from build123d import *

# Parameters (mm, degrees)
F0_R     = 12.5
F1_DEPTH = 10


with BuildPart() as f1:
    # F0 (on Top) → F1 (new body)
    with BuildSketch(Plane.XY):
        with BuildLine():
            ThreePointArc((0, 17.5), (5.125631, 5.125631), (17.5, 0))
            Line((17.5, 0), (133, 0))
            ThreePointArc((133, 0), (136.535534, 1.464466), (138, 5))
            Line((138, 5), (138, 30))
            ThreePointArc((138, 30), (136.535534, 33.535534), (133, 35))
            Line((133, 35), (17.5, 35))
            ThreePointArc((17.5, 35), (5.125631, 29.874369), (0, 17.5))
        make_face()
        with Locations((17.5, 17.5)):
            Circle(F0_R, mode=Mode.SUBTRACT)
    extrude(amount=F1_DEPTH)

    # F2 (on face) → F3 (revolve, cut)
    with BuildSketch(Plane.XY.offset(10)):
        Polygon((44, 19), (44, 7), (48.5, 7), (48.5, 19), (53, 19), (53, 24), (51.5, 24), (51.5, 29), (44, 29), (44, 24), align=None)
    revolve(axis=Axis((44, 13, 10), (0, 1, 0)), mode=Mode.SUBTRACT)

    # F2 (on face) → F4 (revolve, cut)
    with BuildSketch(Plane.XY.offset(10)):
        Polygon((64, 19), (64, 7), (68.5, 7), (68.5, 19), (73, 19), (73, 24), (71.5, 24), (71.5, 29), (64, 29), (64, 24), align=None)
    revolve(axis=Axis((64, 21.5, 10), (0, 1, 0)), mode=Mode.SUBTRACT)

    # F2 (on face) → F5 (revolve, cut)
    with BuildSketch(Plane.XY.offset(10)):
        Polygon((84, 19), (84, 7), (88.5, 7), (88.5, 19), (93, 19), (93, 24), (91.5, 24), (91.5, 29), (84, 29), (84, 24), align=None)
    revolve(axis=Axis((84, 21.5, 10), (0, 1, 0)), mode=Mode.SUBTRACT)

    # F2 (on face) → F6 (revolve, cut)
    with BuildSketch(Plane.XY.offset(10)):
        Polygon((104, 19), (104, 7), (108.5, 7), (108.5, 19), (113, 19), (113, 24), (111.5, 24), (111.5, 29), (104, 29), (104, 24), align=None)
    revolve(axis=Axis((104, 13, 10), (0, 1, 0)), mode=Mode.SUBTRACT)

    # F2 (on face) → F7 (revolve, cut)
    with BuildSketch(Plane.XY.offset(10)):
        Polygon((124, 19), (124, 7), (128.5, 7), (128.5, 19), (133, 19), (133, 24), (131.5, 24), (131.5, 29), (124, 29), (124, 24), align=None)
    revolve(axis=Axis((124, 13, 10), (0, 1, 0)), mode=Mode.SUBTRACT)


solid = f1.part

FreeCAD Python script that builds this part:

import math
import FreeCAD as App
import Part
import Sketcher
from FreeCAD import Vector
Q = App.Units.Quantity

doc = App.newDocument("Part")
params = doc.addObject("Spreadsheet::Sheet", "Params")
for row, (alias, value) in enumerate([
    ("sketch1_diameter", "25 mm"),
    ("sketch1_radius", "5 mm"),
    ("sketch1_radius2", "17.499999 mm"),
    ("sketch1_width", "115.5 mm"),
    ("pad1_length", "10 mm"),
    ("sketch2_height", "12 mm"),
    ("sketch2_height2", "5 mm"),
    ("sketch2_width", "4.5 mm"),
    ("sketch2_width2", "1.5 mm"),
    ("groove_angle", "360 deg"),
    ("sketch3_height", "12 mm"),
    ("sketch3_height2", "5 mm"),
    ("sketch3_width", "4.5 mm"),
    ("sketch3_width2", "1.5 mm"),
    ("groove2_angle", "360 deg"),
    ("sketch4_height", "12 mm"),
    ("sketch4_height2", "5 mm"),
    ("sketch4_width", "4.5 mm"),
    ("sketch4_width2", "1.5 mm"),
    ("groove3_angle", "360 deg"),
    ("sketch5_height", "12 mm"),
    ("sketch5_height2", "5 mm"),
    ("sketch5_width", "4.5 mm"),
    ("sketch5_width2", "1.5 mm"),
    ("groove4_angle", "360 deg"),
    ("sketch6_height", "12 mm"),
    ("sketch6_height2", "5 mm"),
    ("sketch6_width", "4.5 mm"),
    ("sketch6_width2", "1.5 mm"),
    ("groove5_angle", "360 deg"),
], start=1):
    params.set(f"A{row}", alias)
    params.set(f"B{row}", "=" + value)
    params.setAlias(f"B{row}", alias)

body = doc.addObject("PartDesign::Body", "Body")

# Sketch on XY plane
sketch1 = body.newObject("Sketcher::SketchObject", "Sketch")
sketch1.AttachmentSupport = (doc.getObject("XY_Plane"), [""])
sketch1.MapMode = "FlatFace"
sketch1.addGeometry([
    Part.ArcOfCircle(Part.Circle(Vector(17.499999, 17.499999, 0), Vector(0, 0, 1), 17.499999), math.radians(179.999996), math.radians(270.000004)),  # 0
    Part.LineSegment(Vector(17.5, 0, 0), Vector(133, 0, 0)),  # 1
    Part.ArcOfCircle(Part.Circle(Vector(133, 5, 0), Vector(0, 0, 1), 5), math.radians(-90.000004), math.radians(0.000004)),  # 2
    Part.LineSegment(Vector(138, 5, 0), Vector(138, 30, 0)),  # 3
    Part.ArcOfCircle(Part.Circle(Vector(133, 30, 0), Vector(0, 0, 1), 5), math.radians(-0.000004), math.radians(90.000004)),  # 4
    Part.LineSegment(Vector(133, 35, 0), Vector(17.5, 35, 0)),  # 5
    Part.ArcOfCircle(Part.Circle(Vector(17.499999, 17.500001, 0), Vector(0, 0, 1), 17.499999), math.radians(89.999996), math.radians(180.000004)),  # 6
    Part.Circle(Vector(17.5, 17.5, 0), Vector(0, 0, 1), 12.5),  # 7
], False)
sketch1.addConstraint([
    Sketcher.Constraint("Tangent", 0, 2, 1, 1),
    Sketcher.Constraint("Tangent", 1, 2, 2, 1),
    Sketcher.Constraint("Tangent", 2, 2, 3, 1),
    Sketcher.Constraint("Tangent", 3, 2, 4, 1),
    Sketcher.Constraint("Tangent", 4, 2, 5, 1),
    Sketcher.Constraint("Tangent", 5, 2, 6, 1),
    Sketcher.Constraint("Tangent", 6, 2, 0, 1),
    Sketcher.Constraint("Horizontal", 1),
    Sketcher.Constraint("Vertical", 3),
    Sketcher.Constraint("Horizontal", 5),
    Sketcher.Constraint("Coincident", 7, 3, 0, 3),
    Sketcher.Constraint("Equal", 2, 4),
    Sketcher.Constraint("Equal", 0, 6),
    Sketcher.Constraint("PointOnObject", 0, 2, -1),
    Sketcher.Constraint("PointOnObject", 6, 2, -2),
    Sketcher.Constraint("Horizontal", 7, 3, 6, 2),
    Sketcher.Constraint("Diameter", 7, Q("25 mm")),
    Sketcher.Constraint("Radius", 2, Q("5 mm")),
    Sketcher.Constraint("Radius", 0, Q("17.499999 mm")),
    Sketcher.Constraint("DistanceX", 1, 1, 1, 2, Q("115.5 mm")),
])
sketch1.setExpression("Constraints[16]", "Params.sketch1_diameter")
sketch1.setExpression("Constraints[17]", "Params.sketch1_radius")
sketch1.setExpression("Constraints[18]", "Params.sketch1_radius2")
sketch1.setExpression("Constraints[19]", "Params.sketch1_width")
pad1 = body.newObject("PartDesign::Pad", "Pad")
pad1.Profile = sketch1
pad1.setExpression("Length", "Params.pad1_length")

# Sketch on XY plane
sketch2 = body.newObject("Sketcher::SketchObject", "Sketch001")
sketch2.AttachmentSupport = (doc.getObject("XY_Plane"), [""])
sketch2.MapMode = "FlatFace"
sketch2.AttachmentOffset = App.Placement(Vector(0, 0, 10), App.Rotation())
sketch2.addGeometry([
    Part.LineSegment(Vector(44, 7, 0), Vector(48.5, 7, 0)),  # 0
    Part.LineSegment(Vector(48.5, 7, 0), Vector(48.5, 19, 0)),  # 1
    Part.LineSegment(Vector(48.5, 19, 0), Vector(53, 19, 0)),  # 2
    Part.LineSegment(Vector(53, 19, 0), Vector(53, 24, 0)),  # 3
    Part.LineSegment(Vector(53, 24, 0), Vector(51.5, 24, 0)),  # 4
    Part.LineSegment(Vector(51.5, 24, 0), Vector(51.5, 29, 0)),  # 5
    Part.LineSegment(Vector(51.5, 29, 0), Vector(44, 29, 0)),  # 6
    Part.LineSegment(Vector(44, 29, 0), Vector(44, 7, 0)),  # 7
], False)
sketch2.addGeometry(Part.LineSegment(Vector(44, 7, 0), Vector(44, 29, 0)), True)  # axis
sketch2.addConstraint([
    Sketcher.Constraint("Coincident", 0, 2, 1, 1),
    Sketcher.Constraint("Coincident", 1, 2, 2, 1),
    Sketcher.Constraint("Coincident", 2, 2, 3, 1),
    Sketcher.Constraint("Coincident", 3, 2, 4, 1),
    Sketcher.Constraint("Coincident", 4, 2, 5, 1),
    Sketcher.Constraint("Coincident", 5, 2, 6, 1),
    Sketcher.Constraint("Coincident", 6, 2, 7, 1),
    Sketcher.Constraint("Coincident", 7, 2, 0, 1),
    Sketcher.Constraint("Horizontal", 0),
    Sketcher.Constraint("Vertical", 1),
    Sketcher.Constraint("Horizontal", 2),
    Sketcher.Constraint("Vertical", 3),
    Sketcher.Constraint("Horizontal", 4),
    Sketcher.Constraint("Vertical", 5),
    Sketcher.Constraint("Horizontal", 6),
    Sketcher.Constraint("Vertical", 7),
    Sketcher.Constraint("Vertical", 8),
    Sketcher.Constraint("Coincident", 8, 1, 7, 2),
    Sketcher.Constraint("Horizontal", 5, 2, 8, 2),
    Sketcher.Constraint("Equal", 0, 2),
    Sketcher.Constraint("Equal", 3, 5),
    Sketcher.Constraint("DistanceY", 1, 1, 1, 2, Q("12 mm")),
    Sketcher.Constraint("DistanceY", 3, 1, 3, 2, Q("5 mm")),
    Sketcher.Constraint("DistanceX", 0, 1, 0, 2, Q("4.5 mm")),
    Sketcher.Constraint("DistanceX", 4, 2, 4, 1, Q("1.5 mm")),
    Sketcher.Constraint("DistanceY", -1, 1, 0, 2, Q("7 mm")),
    Sketcher.Constraint("DistanceX", -1, 1, 2, 2, Q("53 mm")),
])
sketch2.setExpression("Constraints[21]", "Params.sketch2_height")
sketch2.setExpression("Constraints[22]", "Params.sketch2_height2")
sketch2.setExpression("Constraints[23]", "Params.sketch2_width")
sketch2.setExpression("Constraints[24]", "Params.sketch2_width2")
groove = body.newObject("PartDesign::Groove", "Groove")
groove.Profile = sketch2
groove.ReferenceAxis = (sketch2, ["Axis0"])
groove.setExpression("Angle", "Params.groove_angle")

# Sketch on XY plane
sketch3 = body.newObject("Sketcher::SketchObject", "Sketch002")
sketch3.AttachmentSupport = (doc.getObject("XY_Plane"), [""])
sketch3.MapMode = "FlatFace"
sketch3.AttachmentOffset = App.Placement(Vector(0, 0, 10), App.Rotation())
sketch3.addGeometry([
    Part.LineSegment(Vector(64, 7, 0), Vector(68.5, 7, 0)),  # 0
    Part.LineSegment(Vector(68.5, 7, 0), Vector(68.5, 19, 0)),  # 1
    Part.LineSegment(Vector(68.5, 19, 0), Vector(73, 19, 0)),  # 2
    Part.LineSegment(Vector(73, 19, 0), Vector(73, 24, 0)),  # 3
    Part.LineSegment(Vector(73, 24, 0), Vector(71.5, 24, 0)),  # 4
    Part.LineSegment(Vector(71.5, 24, 0), Vector(71.5, 29, 0)),  # 5
    Part.LineSegment(Vector(71.5, 29, 0), Vector(64, 29, 0)),  # 6
    Part.LineSegment(Vector(64, 29, 0), Vector(64, 7, 0)),  # 7
], False)
sketch3.addGeometry(Part.LineSegment(Vector(64, 7, 0), Vector(64, 29, 0)), True)  # axis
sketch3.addConstraint([
    Sketcher.Constraint("Coincident", 0, 2, 1, 1),
    Sketcher.Constraint("Coincident", 1, 2, 2, 1),
    Sketcher.Constraint("Coincident", 2, 2, 3, 1),
    Sketcher.Constraint("Coincident", 3, 2, 4, 1),
    Sketcher.Constraint("Coincident", 4, 2, 5, 1),
    Sketcher.Constraint("Coincident", 5, 2, 6, 1),
    Sketcher.Constraint("Coincident", 6, 2, 7, 1),
    Sketcher.Constraint("Coincident", 7, 2, 0, 1),
    Sketcher.Constraint("Horizontal", 0),
    Sketcher.Constraint("Vertical", 1),
    Sketcher.Constraint("Horizontal", 2),
    Sketcher.Constraint("Vertical", 3),
    Sketcher.Constraint("Horizontal", 4),
    Sketcher.Constraint("Vertical", 5),
    Sketcher.Constraint("Horizontal", 6),
    Sketcher.Constraint("Vertical", 7),
    Sketcher.Constraint("Vertical", 8),
    Sketcher.Constraint("Coincident", 8, 1, 7, 2),
    Sketcher.Constraint("Horizontal", 5, 2, 8, 2),
    Sketcher.Constraint("Equal", 0, 2),
    Sketcher.Constraint("Equal", 3, 5),
    Sketcher.Constraint("DistanceY", 1, 1, 1, 2, Q("12 mm")),
    Sketcher.Constraint("DistanceY", 3, 1, 3, 2, Q("5 mm")),
    Sketcher.Constraint("DistanceX", 0, 1, 0, 2, Q("4.5 mm")),
    Sketcher.Constraint("DistanceX", 4, 2, 4, 1, Q("1.5 mm")),
    Sketcher.Constraint("DistanceY", -1, 1, 0, 2, Q("7 mm")),
    Sketcher.Constraint("DistanceX", -1, 1, 2, 2, Q("73 mm")),
])
sketch3.setExpression("Constraints[21]", "Params.sketch3_height")
sketch3.setExpression("Constraints[22]", "Params.sketch3_height2")
sketch3.setExpression("Constraints[23]", "Params.sketch3_width")
sketch3.setExpression("Constraints[24]", "Params.sketch3_width2")
groove2 = body.newObject("PartDesign::Groove", "Groove001")
groove2.Profile = sketch3
groove2.ReferenceAxis = (sketch3, ["Axis0"])
groove2.setExpression("Angle", "Params.groove2_angle")

# Sketch on XY plane
sketch4 = body.newObject("Sketcher::SketchObject", "Sketch003")
sketch4.AttachmentSupport = (doc.getObject("XY_Plane"), [""])
sketch4.MapMode = "FlatFace"
sketch4.AttachmentOffset = App.Placement(Vector(0, 0, 10), App.Rotation())
sketch4.addGeometry([
    Part.LineSegment(Vector(84, 7, 0), Vector(88.5, 7, 0)),  # 0
    Part.LineSegment(Vector(88.5, 7, 0), Vector(88.5, 19, 0)),  # 1
    Part.LineSegment(Vector(88.5, 19, 0), Vector(93, 19, 0)),  # 2
    Part.LineSegment(Vector(93, 19, 0), Vector(93, 24, 0)),  # 3
    Part.LineSegment(Vector(93, 24, 0), Vector(91.5, 24, 0)),  # 4
    Part.LineSegment(Vector(91.5, 24, 0), Vector(91.5, 29, 0)),  # 5
    Part.LineSegment(Vector(91.5, 29, 0), Vector(84, 29, 0)),  # 6
    Part.LineSegment(Vector(84, 29, 0), Vector(84, 7, 0)),  # 7
], False)
sketch4.addGeometry(Part.LineSegment(Vector(84, 7, 0), Vector(84, 29, 0)), True)  # axis
sketch4.addConstraint([
    Sketcher.Constraint("Coincident", 0, 2, 1, 1),
    Sketcher.Constraint("Coincident", 1, 2, 2, 1),
    Sketcher.Constraint("Coincident", 2, 2, 3, 1),
    Sketcher.Constraint("Coincident", 3, 2, 4, 1),
    Sketcher.Constraint("Coincident", 4, 2, 5, 1),
    Sketcher.Constraint("Coincident", 5, 2, 6, 1),
    Sketcher.Constraint("Coincident", 6, 2, 7, 1),
    Sketcher.Constraint("Coincident", 7, 2, 0, 1),
    Sketcher.Constraint("Horizontal", 0),
    Sketcher.Constraint("Vertical", 1),
    Sketcher.Constraint("Horizontal", 2),
    Sketcher.Constraint("Vertical", 3),
    Sketcher.Constraint("Horizontal", 4),
    Sketcher.Constraint("Vertical", 5),
    Sketcher.Constraint("Horizontal", 6),
    Sketcher.Constraint("Vertical", 7),
    Sketcher.Constraint("Vertical", 8),
    Sketcher.Constraint("Coincident", 8, 1, 7, 2),
    Sketcher.Constraint("Horizontal", 5, 2, 8, 2),
    Sketcher.Constraint("Equal", 0, 2),
    Sketcher.Constraint("Equal", 3, 5),
    Sketcher.Constraint("DistanceY", 1, 1, 1, 2, Q("12 mm")),
    Sketcher.Constraint("DistanceY", 3, 1, 3, 2, Q("5 mm")),
    Sketcher.Constraint("DistanceX", 0, 1, 0, 2, Q("4.5 mm")),
    Sketcher.Constraint("DistanceX", 4, 2, 4, 1, Q("1.5 mm")),
    Sketcher.Constraint("DistanceY", -1, 1, 0, 2, Q("7 mm")),
    Sketcher.Constraint("DistanceX", -1, 1, 2, 2, Q("93 mm")),
])
sketch4.setExpression("Constraints[21]", "Params.sketch4_height")
sketch4.setExpression("Constraints[22]", "Params.sketch4_height2")
sketch4.setExpression("Constraints[23]", "Params.sketch4_width")
sketch4.setExpression("Constraints[24]", "Params.sketch4_width2")
groove3 = body.newObject("PartDesign::Groove", "Groove002")
groove3.Profile = sketch4
groove3.ReferenceAxis = (sketch4, ["Axis0"])
groove3.setExpression("Angle", "Params.groove3_angle")

# Sketch on XY plane
sketch5 = body.newObject("Sketcher::SketchObject", "Sketch004")
sketch5.AttachmentSupport = (doc.getObject("XY_Plane"), [""])
sketch5.MapMode = "FlatFace"
sketch5.AttachmentOffset = App.Placement(Vector(0, 0, 10), App.Rotation())
sketch5.addGeometry([
    Part.LineSegment(Vector(104, 7, 0), Vector(108.5, 7, 0)),  # 0
    Part.LineSegment(Vector(108.5, 7, 0), Vector(108.5, 19, 0)),  # 1
    Part.LineSegment(Vector(108.5, 19, 0), Vector(113, 19, 0)),  # 2
    Part.LineSegment(Vector(113, 19, 0), Vector(113, 24, 0)),  # 3
    Part.LineSegment(Vector(113, 24, 0), Vector(111.5, 24, 0)),  # 4
    Part.LineSegment(Vector(111.5, 24, 0), Vector(111.5, 29, 0)),  # 5
    Part.LineSegment(Vector(111.5, 29, 0), Vector(104, 29, 0)),  # 6
    Part.LineSegment(Vector(104, 29, 0), Vector(104, 7, 0)),  # 7
], False)
sketch5.addGeometry(Part.LineSegment(Vector(104, 7, 0), Vector(104, 29, 0)), True)  # axis
sketch5.addConstraint([
    Sketcher.Constraint("Coincident", 0, 2, 1, 1),
    Sketcher.Constraint("Coincident", 1, 2, 2, 1),
    Sketcher.Constraint("Coincident", 2, 2, 3, 1),
    Sketcher.Constraint("Coincident", 3, 2, 4, 1),
    Sketcher.Constraint("Coincident", 4, 2, 5, 1),
    Sketcher.Constraint("Coincident", 5, 2, 6, 1),
    Sketcher.Constraint("Coincident", 6, 2, 7, 1),
    Sketcher.Constraint("Coincident", 7, 2, 0, 1),
    Sketcher.Constraint("Horizontal", 0),
    Sketcher.Constraint("Vertical", 1),
    Sketcher.Constraint("Horizontal", 2),
    Sketcher.Constraint("Vertical", 3),
    Sketcher.Constraint("Horizontal", 4),
    Sketcher.Constraint("Vertical", 5),
    Sketcher.Constraint("Horizontal", 6),
    Sketcher.Constraint("Vertical", 7),
    Sketcher.Constraint("Vertical", 8),
    Sketcher.Constraint("Coincident", 8, 1, 7, 2),
    Sketcher.Constraint("Horizontal", 5, 2, 8, 2),
    Sketcher.Constraint("Equal", 0, 2),
    Sketcher.Constraint("Equal", 3, 5),
    Sketcher.Constraint("DistanceY", 1, 1, 1, 2, Q("12 mm")),
    Sketcher.Constraint("DistanceY", 3, 1, 3, 2, Q("5 mm")),
    Sketcher.Constraint("DistanceX", 0, 1, 0, 2, Q("4.5 mm")),
    Sketcher.Constraint("DistanceX", 4, 2, 4, 1, Q("1.5 mm")),
    Sketcher.Constraint("DistanceY", -1, 1, 0, 2, Q("7 mm")),
    Sketcher.Constraint("DistanceX", -1, 1, 2, 2, Q("113 mm")),
])
sketch5.setExpression("Constraints[21]", "Params.sketch5_height")
sketch5.setExpression("Constraints[22]", "Params.sketch5_height2")
sketch5.setExpression("Constraints[23]", "Params.sketch5_width")
sketch5.setExpression("Constraints[24]", "Params.sketch5_width2")
groove4 = body.newObject("PartDesign::Groove", "Groove003")
groove4.Profile = sketch5
groove4.ReferenceAxis = (sketch5, ["Axis0"])
groove4.setExpression("Angle", "Params.groove4_angle")

# Sketch on XY plane
sketch6 = body.newObject("Sketcher::SketchObject", "Sketch005")
sketch6.AttachmentSupport = (doc.getObject("XY_Plane"), [""])
sketch6.MapMode = "FlatFace"
sketch6.AttachmentOffset = App.Placement(Vector(0, 0, 10), App.Rotation())
sketch6.addGeometry([
    Part.LineSegment(Vector(124, 7, 0), Vector(128.5, 7, 0)),  # 0
    Part.LineSegment(Vector(128.5, 7, 0), Vector(128.5, 19, 0)),  # 1
    Part.LineSegment(Vector(128.5, 19, 0), Vector(133, 19, 0)),  # 2
    Part.LineSegment(Vector(133, 19, 0), Vector(133, 24, 0)),  # 3
    Part.LineSegment(Vector(133, 24, 0), Vector(131.5, 24, 0)),  # 4
    Part.LineSegment(Vector(131.5, 24, 0), Vector(131.5, 29, 0)),  # 5
    Part.LineSegment(Vector(131.5, 29, 0), Vector(124, 29, 0)),  # 6
    Part.LineSegment(Vector(124, 29, 0), Vector(124, 7, 0)),  # 7
], False)
sketch6.addGeometry(Part.LineSegment(Vector(124, 7, 0), Vector(124, 29, 0)), True)  # axis
sketch6.addConstraint([
    Sketcher.Constraint("Coincident", 0, 2, 1, 1),
    Sketcher.Constraint("Coincident", 1, 2, 2, 1),
    Sketcher.Constraint("Coincident", 2, 2, 3, 1),
    Sketcher.Constraint("Coincident", 3, 2, 4, 1),
    Sketcher.Constraint("Coincident", 4, 2, 5, 1),
    Sketcher.Constraint("Coincident", 5, 2, 6, 1),
    Sketcher.Constraint("Coincident", 6, 2, 7, 1),
    Sketcher.Constraint("Coincident", 7, 2, 0, 1),
    Sketcher.Constraint("Horizontal", 0),
    Sketcher.Constraint("Vertical", 1),
    Sketcher.Constraint("Horizontal", 2),
    Sketcher.Constraint("Vertical", 3),
    Sketcher.Constraint("Horizontal", 4),
    Sketcher.Constraint("Vertical", 5),
    Sketcher.Constraint("Horizontal", 6),
    Sketcher.Constraint("Vertical", 7),
    Sketcher.Constraint("Vertical", 8),
    Sketcher.Constraint("Coincident", 8, 1, 7, 2),
    Sketcher.Constraint("Horizontal", 5, 2, 8, 2),
    Sketcher.Constraint("Equal", 0, 2),
    Sketcher.Constraint("Equal", 3, 5),
    Sketcher.Constraint("DistanceY", 1, 1, 1, 2, Q("12 mm")),
    Sketcher.Constraint("DistanceY", 3, 1, 3, 2, Q("5 mm")),
    Sketcher.Constraint("DistanceX", 0, 1, 0, 2, Q("4.5 mm")),
    Sketcher.Constraint("DistanceX", 4, 2, 4, 1, Q("1.5 mm")),
    Sketcher.Constraint("DistanceY", -1, 1, 0, 2, Q("7 mm")),
    Sketcher.Constraint("DistanceX", -1, 1, 2, 2, Q("133 mm")),
])
sketch6.setExpression("Constraints[21]", "Params.sketch6_height")
sketch6.setExpression("Constraints[22]", "Params.sketch6_height2")
sketch6.setExpression("Constraints[23]", "Params.sketch6_width")
sketch6.setExpression("Constraints[24]", "Params.sketch6_width2")
groove5 = body.newObject("PartDesign::Groove", "Groove004")
groove5.Profile = sketch6
groove5.ReferenceAxis = (sketch6, ["Axis0"])
groove5.setExpression("Angle", "Params.groove5_angle")

doc.recompute()
